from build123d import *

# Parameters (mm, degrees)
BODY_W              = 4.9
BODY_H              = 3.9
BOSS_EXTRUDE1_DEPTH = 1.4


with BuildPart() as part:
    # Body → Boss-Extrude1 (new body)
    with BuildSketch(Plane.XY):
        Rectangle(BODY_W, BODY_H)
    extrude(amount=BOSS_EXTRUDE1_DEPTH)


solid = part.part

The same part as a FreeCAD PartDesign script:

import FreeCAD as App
import Part
import Sketcher
from FreeCAD import Vector


def add_polygon(sketch, points):
    """Adds a closed chain of lines whose ends are joined by coincident constraints."""
    first, n = sketch.GeometryCount, len(points)
    for a, b in zip(points, points[1:] + points[:1]):
        sketch.addGeometry(Part.LineSegment(App.Vector(*a, 0), App.Vector(*b, 0)), False)
    for i in range(n):
        sketch.addConstraint(Sketcher.Constraint("Coincident", first + i, 2, first + (i + 1) % n, 1))

doc = App.newDocument("Part")
params = doc.addObject("Spreadsheet::Sheet", "Params")
for row, (alias, value) in enumerate([
    ("sketch1_width", "4.9 mm"),
    ("sketch1_height", "3.9 mm"),
    ("pad1_length", "1.4 mm"),
], start=1):
    params.set(f"A{row}", alias)
    params.set(f"B{row}", "=" + value)
    params.setAlias(f"B{row}", alias)

body = doc.addObject("PartDesign::Body", "Body")

# Sketch on XY plane
sketch1 = body.newObject("Sketcher::SketchObject", "Sketch")
sketch1.AttachmentSupport = (doc.getObject("XY_Plane"), [""])
sketch1.MapMode = "FlatFace"
add_polygon(sketch1, [(-2.5, 1.9), (-2.5, -1.9), (2.5, -1.9), (2.5, 1.9)])  # lines 0-3
sketch1.addConstraint(Sketcher.Constraint("Vertical", 0))
sketch1.addConstraint(Sketcher.Constraint("Horizontal", 1))
sketch1.addConstraint(Sketcher.Constraint("Vertical", 2))
sketch1.addConstraint(Sketcher.Constraint("Horizontal", 3))
sketch1.addConstraint(Sketcher.Constraint("Symmetric", 0, 2, 2, 2, -1, 1))
sketch1.addConstraint(Sketcher.Constraint("DistanceX", 1, 1, 1, 2, 4.9))
sketch1.addConstraint(Sketcher.Constraint("DistanceY", 0, 2, 0, 1, 3.9))
sketch1.setExpression("Constraints[9]", "Params.sketch1_width")
sketch1.setExpression("Constraints[10]", "Params.sketch1_height")
pad1 = body.newObject("PartDesign::Pad", "Pad")
pad1.Profile = sketch1
pad1.setExpression("Length", "Params.pad1_length")

doc.recompute()
